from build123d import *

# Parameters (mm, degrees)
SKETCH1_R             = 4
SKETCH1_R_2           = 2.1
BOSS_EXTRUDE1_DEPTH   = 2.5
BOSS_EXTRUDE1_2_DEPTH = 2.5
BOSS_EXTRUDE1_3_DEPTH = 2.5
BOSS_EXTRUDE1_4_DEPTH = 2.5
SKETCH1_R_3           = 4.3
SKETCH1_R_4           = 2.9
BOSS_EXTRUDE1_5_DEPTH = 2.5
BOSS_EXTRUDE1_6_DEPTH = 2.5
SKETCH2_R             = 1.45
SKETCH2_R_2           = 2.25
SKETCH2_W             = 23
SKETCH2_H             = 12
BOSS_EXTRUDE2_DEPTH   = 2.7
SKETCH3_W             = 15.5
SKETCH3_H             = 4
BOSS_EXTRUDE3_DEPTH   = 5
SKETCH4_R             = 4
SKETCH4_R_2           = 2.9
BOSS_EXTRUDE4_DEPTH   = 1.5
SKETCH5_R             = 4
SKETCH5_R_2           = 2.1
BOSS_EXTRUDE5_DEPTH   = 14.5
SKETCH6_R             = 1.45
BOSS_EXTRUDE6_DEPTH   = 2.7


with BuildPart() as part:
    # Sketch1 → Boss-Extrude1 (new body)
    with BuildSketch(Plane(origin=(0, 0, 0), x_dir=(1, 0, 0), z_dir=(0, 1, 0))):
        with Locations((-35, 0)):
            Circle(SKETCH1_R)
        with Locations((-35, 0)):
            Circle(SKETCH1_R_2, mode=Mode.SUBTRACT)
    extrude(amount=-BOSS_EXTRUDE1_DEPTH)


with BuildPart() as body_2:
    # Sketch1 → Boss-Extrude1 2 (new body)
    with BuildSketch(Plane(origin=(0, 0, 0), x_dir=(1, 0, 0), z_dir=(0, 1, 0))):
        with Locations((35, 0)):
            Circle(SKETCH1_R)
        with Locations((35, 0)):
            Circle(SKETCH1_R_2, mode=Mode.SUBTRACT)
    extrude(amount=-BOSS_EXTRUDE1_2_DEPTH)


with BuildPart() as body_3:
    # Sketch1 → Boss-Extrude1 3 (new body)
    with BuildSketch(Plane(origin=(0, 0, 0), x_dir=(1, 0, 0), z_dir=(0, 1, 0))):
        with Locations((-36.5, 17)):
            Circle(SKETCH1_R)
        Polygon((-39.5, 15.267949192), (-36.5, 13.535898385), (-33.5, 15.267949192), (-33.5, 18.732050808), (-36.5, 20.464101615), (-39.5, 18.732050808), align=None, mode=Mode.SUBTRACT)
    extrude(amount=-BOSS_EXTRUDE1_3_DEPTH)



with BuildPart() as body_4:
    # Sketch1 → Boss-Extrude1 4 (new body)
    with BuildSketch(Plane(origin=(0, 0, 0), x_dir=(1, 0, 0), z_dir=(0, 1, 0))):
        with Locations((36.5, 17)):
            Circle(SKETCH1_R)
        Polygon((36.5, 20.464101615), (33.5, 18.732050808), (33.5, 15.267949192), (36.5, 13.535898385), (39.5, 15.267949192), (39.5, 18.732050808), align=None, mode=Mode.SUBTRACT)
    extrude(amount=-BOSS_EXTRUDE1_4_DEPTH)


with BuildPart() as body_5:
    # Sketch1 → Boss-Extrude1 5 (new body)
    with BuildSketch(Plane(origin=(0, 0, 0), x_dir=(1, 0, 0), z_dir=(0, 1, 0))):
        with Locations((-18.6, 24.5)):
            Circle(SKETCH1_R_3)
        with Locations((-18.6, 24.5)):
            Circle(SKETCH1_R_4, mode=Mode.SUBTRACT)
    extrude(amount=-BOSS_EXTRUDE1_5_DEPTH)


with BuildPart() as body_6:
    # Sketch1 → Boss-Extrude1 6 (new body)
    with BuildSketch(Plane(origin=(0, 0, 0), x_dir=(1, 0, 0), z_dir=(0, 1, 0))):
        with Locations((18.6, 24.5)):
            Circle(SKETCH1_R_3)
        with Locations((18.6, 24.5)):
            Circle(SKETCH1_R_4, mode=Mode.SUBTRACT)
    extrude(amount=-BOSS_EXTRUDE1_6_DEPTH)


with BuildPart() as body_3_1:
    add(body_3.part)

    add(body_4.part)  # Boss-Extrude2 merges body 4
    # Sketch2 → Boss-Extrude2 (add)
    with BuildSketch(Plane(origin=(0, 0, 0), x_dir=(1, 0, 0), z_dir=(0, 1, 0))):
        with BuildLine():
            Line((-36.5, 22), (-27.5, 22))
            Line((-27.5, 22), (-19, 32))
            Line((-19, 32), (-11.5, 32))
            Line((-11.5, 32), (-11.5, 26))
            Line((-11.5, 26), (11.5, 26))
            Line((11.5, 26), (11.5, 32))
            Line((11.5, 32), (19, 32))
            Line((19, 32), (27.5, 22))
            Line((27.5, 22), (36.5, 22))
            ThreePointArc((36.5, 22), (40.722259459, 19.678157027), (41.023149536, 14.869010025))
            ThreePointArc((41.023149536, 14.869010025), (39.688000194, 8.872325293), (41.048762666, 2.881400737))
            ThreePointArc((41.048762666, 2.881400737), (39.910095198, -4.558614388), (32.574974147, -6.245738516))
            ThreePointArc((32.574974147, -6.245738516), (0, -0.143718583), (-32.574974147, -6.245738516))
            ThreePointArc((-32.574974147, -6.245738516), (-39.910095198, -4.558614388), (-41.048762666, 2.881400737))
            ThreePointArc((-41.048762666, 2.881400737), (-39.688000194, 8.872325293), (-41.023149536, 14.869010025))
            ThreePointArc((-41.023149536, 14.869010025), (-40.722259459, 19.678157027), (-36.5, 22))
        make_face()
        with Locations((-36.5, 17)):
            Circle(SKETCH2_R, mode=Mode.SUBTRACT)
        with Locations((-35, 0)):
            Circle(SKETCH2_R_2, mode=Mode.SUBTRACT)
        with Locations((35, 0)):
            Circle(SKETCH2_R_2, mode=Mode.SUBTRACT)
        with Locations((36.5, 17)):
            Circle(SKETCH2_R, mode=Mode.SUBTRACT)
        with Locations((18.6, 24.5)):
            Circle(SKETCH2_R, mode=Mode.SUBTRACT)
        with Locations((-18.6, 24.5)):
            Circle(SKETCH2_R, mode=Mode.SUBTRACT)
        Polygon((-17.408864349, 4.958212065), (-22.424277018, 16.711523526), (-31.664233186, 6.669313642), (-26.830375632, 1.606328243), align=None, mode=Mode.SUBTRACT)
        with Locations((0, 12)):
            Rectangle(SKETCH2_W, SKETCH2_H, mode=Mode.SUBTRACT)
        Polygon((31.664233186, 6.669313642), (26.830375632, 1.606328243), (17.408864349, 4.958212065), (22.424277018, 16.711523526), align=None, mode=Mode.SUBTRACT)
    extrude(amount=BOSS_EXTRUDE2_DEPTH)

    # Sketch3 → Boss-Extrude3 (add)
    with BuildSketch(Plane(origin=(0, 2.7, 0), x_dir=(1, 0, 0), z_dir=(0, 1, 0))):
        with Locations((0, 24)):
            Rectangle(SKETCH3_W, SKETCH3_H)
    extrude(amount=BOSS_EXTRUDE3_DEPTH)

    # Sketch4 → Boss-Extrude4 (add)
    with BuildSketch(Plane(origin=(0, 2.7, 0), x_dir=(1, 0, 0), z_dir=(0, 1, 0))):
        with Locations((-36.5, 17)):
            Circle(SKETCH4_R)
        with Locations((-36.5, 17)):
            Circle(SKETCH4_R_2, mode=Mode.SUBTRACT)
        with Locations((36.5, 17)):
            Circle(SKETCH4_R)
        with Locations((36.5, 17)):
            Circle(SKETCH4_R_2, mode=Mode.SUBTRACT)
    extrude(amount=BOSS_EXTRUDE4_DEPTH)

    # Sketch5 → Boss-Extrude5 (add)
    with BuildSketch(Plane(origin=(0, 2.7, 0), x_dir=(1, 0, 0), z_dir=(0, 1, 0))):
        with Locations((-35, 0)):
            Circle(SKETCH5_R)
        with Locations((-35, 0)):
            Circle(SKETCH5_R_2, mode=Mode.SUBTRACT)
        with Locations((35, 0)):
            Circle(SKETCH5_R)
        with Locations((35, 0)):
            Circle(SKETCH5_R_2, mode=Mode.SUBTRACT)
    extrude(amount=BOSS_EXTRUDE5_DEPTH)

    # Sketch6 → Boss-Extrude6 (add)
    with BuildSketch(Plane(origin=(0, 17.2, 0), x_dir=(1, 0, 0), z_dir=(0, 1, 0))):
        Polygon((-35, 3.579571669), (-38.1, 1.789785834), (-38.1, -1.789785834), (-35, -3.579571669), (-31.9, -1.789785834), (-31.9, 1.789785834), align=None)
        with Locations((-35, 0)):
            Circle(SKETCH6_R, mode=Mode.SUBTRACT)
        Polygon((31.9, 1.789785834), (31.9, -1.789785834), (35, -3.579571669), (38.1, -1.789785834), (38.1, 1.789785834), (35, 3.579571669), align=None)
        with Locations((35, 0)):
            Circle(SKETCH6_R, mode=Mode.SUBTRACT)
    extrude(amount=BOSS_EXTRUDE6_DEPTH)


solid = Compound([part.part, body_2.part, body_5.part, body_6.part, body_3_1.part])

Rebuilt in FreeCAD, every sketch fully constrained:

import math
import FreeCAD as App
import Part
import Sketcher
Q = App.Units.Quantity


def add_polygon(sketch, points):
    """Adds a closed chain of lines whose ends are joined by coincident constraints."""
    first, n = sketch.GeometryCount, len(points)
    for a, b in zip(points, points[1:] + points[:1]):
        sketch.addGeometry(Part.LineSegment(App.Vector(*a, 0), App.Vector(*b, 0)), False)
    for i in range(n):
        sketch.addConstraint(Sketcher.Constraint("Coincident", first + i, 2, first + (i + 1) % n, 1))

doc = App.newDocument("Part")
body = doc.addObject("PartDesign::Body", "Body")

sketch1 = body.newObject("Sketcher::SketchObject", "Sketch")
sketch1.AttachmentSupport = (doc.getObject("XZ_Plane"), [""])
sketch1.MapMode = "FlatFace"
sketch1.addGeometry([
    Part.Circle(App.Vector(-35, 0, 0), App.Vector(0, 0, 1), 4),
    Part.Circle(App.Vector(-35, 0, 0), App.Vector(0, 0, 1), 2.1),
], False)
sketch1.addConstraint([
    Sketcher.Constraint("Coincident", 1, 3, 0, 3),
    Sketcher.Constraint("PointOnObject", 0, 3, -1),
    Sketcher.Constraint("Diameter", 0, Q("8 mm")),
    Sketcher.Constraint("Diameter", 1, Q("4.2 mm")),
    Sketcher.Constraint("DistanceX", 0, 3, -1, 1, Q("35 mm")),
])
pad1 = body.newObject("PartDesign::Pad", "Pad")
pad1.Profile = sketch1
pad1.Length = 2.5
body2 = doc.addObject("PartDesign::Body", "Body001")

sketch2 = body2.newObject("Sketcher::SketchObject", "Sketch001")
sketch2.AttachmentSupport = (doc.getObject("XZ_Plane001"), [""])
sketch2.MapMode = "FlatFace"
sketch2.addGeometry([
    Part.Circle(App.Vector(35, 0, 0), App.Vector(0, 0, 1), 4),
    Part.Circle(App.Vector(35, 0, 0), App.Vector(0, 0, 1), 2.1),
], False)
sketch2.addConstraint([
    Sketcher.Constraint("Coincident", 1, 3, 0, 3),
    Sketcher.Constraint("PointOnObject", 0, 3, -1),
    Sketcher.Constraint("Diameter", 0, Q("8 mm")),
    Sketcher.Constraint("Diameter", 1, Q("4.2 mm")),
    Sketcher.Constraint("DistanceX", -1, 1, 0, 3, Q("35 mm")),
])
pad2 = body2.newObject("PartDesign::Pad", "Pad001")
pad2.Profile = sketch2
pad2.Length = 2.5
body3 = doc.addObject("PartDesign::Body", "Body002")

sketch3 = body3.newObject("Sketcher::SketchObject", "Sketch002")
sketch3.AttachmentSupport = (doc.getObject("XZ_Plane002"), [""])
sketch3.MapMode = "FlatFace"
sketch3.addGeometry(Part.Circle(App.Vector(-36.5, -17, 0), App.Vector(0, 0, 1), 4), False)
add_polygon(sketch3, [(-36.5, -13.5), (-39.5, -15.3), (-39.5, -18.7), (-36.5, -20.5), (-33.5, -18.7), (-33.5, -15.3)])
sketch3.addConstraint([
    Sketcher.Constraint("Vertical", 2),
    Sketcher.Constraint("Vertical", 5),
    Sketcher.Constraint("Parallel", 1, 4),
    Sketcher.Constraint("Parallel", 3, 6),
    Sketcher.Constraint("Horizontal", 2, 2, 4, 2),
    Sketcher.Constraint("Horizontal", 1, 2, 5, 2),
    Sketcher.Constraint("Vertical", 0, 3, 3, 2),
    Sketcher.Constraint("Vertical", 3, 2, 6, 2),
    Sketcher.Constraint("Diameter", 0, Q("8 mm")),
    Sketcher.Constraint("Angle", 1, Q("-150 deg")),
    Sketcher.Constraint("DistanceY", 0, 3, -1, 1, Q("17 mm")),
    Sketcher.Constraint("DistanceX", 1, 2, 0, 3, Q("3 mm")),
    Sketcher.Constraint("DistanceX", 0, 3, -1, 1, Q("36.5 mm")),
    Sketcher.Constraint("DistanceY", 2, 2, 2, 1, Q("3.464102 mm")),
    Sketcher.Constraint("DistanceY", 3, 2, -1, 1, Q("20.464102 mm")),
])
pad3 = body3.newObject("PartDesign::Pad", "Pad002")
pad3.Profile = sketch3
pad3.Length = 2.5
body4 = doc.addObject("PartDesign::Body", "Body003")

sketch4 = body4.newObject("Sketcher::SketchObject", "Sketch003")
sketch4.AttachmentSupport = (doc.getObject("XZ_Plane003"), [""])
sketch4.MapMode = "FlatFace"
sketch4.addGeometry(Part.Circle(App.Vector(36.5, -17, 0), App.Vector(0, 0, 1), 4), False)
add_polygon(sketch4, [(33.5, -18.7), (36.5, -20.5), (39.5, -18.7), (39.5, -15.3), (36.5, -13.5), (33.5, -15.3)])
sketch4.addConstraint([
    Sketcher.Constraint("Vertical", 3),
    Sketcher.Constraint("Vertical", 6),
    Sketcher.Constraint("Parallel", 1, 4),
    Sketcher.Constraint("Parallel", 2, 5),
    Sketcher.Constraint("Horizontal", 3, 2, 5, 2),
    Sketcher.Constraint("Horizontal", 2, 2, 6, 2),
    Sketcher.Constraint("Vertical", 0, 3, 1, 2),
    Sketcher.Constraint("Vertical", 1, 2, 4, 2),
    Sketcher.Constraint("Diameter", 0, Q("8 mm")),
    Sketcher.Constraint("Angle", 1, Q("-30 deg")),
    Sketcher.Constraint("DistanceY", 0, 3, -1, 1, Q("17 mm")),
    Sketcher.Constraint("DistanceX", 1, 2, 2, 2, Q("3 mm")),
    Sketcher.Constraint("DistanceX", -1, 1, 0, 3, Q("36.5 mm")),
    Sketcher.Constraint("DistanceY", 3, 1, 3, 2, Q("3.464102 mm")),
    Sketcher.Constraint("DistanceY", 1, 2, -1, 1, Q("20.464102 mm")),
])
pad4 = body4.newObject("PartDesign::Pad", "Pad003")
pad4.Profile = sketch4
pad4.Length = 2.5
body5 = doc.addObject("PartDesign::Body", "Body004")

sketch5 = body5.newObject("Sketcher::SketchObject", "Sketch004")
sketch5.AttachmentSupport = (doc.getObject("XZ_Plane004"), [""])
sketch5.MapMode = "FlatFace"
sketch5.addGeometry([
    Part.Circle(App.Vector(-18.6, -24.5, 0), App.Vector(0, 0, 1), 4.3),
    Part.Circle(App.Vector(-18.6, -24.5, 0), App.Vector(0, 0, 1), 2.9),
], False)
sketch5.addConstraint([
    Sketcher.Constraint("Coincident", 1, 3, 0, 3),
    Sketcher.Constraint("Diameter", 0, Q("8.6 mm")),
    Sketcher.Constraint("Diameter", 1, Q("5.8 mm")),
    Sketcher.Constraint("DistanceX", 0, 3, -1, 1, Q("18.6 mm")),
    Sketcher.Constraint("DistanceY", 0, 3, -1, 1, Q("24.5 mm")),
])
pad5 = body5.newObject("PartDesign::Pad", "Pad004")
pad5.Profile = sketch5
pad5.Length = 2.5
body6 = doc.addObject("PartDesign::Body", "Body005")

sketch6 = body6.newObject("Sketcher::SketchObject", "Sketch005")
sketch6.AttachmentSupport = (doc.getObject("XZ_Plane005"), [""])
sketch6.MapMode = "FlatFace"
sketch6.addGeometry([
    Part.Circle(App.Vector(18.6, -24.5, 0), App.Vector(0, 0, 1), 4.3),
    Part.Circle(App.Vector(18.6, -24.5, 0), App.Vector(0, 0, 1), 2.9),
], False)
sketch6.addConstraint([
    Sketcher.Constraint("Coincident", 1, 3, 0, 3),
    Sketcher.Constraint("Diameter", 0, Q("8.6 mm")),
    Sketcher.Constraint("Diameter", 1, Q("5.8 mm")),
    Sketcher.Constraint("DistanceX", -1, 1, 0, 3, Q("18.6 mm")),
    Sketcher.Constraint("DistanceY", 0, 3, -1, 1, Q("24.5 mm")),
])
pad6 = body6.newObject("PartDesign::Pad", "Pad005")
pad6.Profile = sketch6
pad6.Length = 2.5
body3.AllowCompound = True
doc.recompute()

boolean = body3.newObject("PartDesign::Boolean", "Boolean")
boolean.Type = "Fuse"
boolean.addObjects([body4])

sketch7 = body3.newObject("Sketcher::SketchObject", "Sketch006")
sketch7.AttachmentSupport = (doc.getObject("XZ_Plane002"), [""])
sketch7.MapMode = "FlatFace"
sketch7.addGeometry(Part.LineSegment(App.Vector(-27.5, -22, 0), App.Vector(-36.5, -22, 0)), False)
sketch7.addGeometry(Part.ArcOfCircle(Part.Circle(App.Vector(-36.5, -17, 0), App.Vector(0, 0, 1), 5), math.radians(155), math.radians(270)), False)
sketch7.addGeometry(Part.ArcOfCircle(Part.Circle(App.Vector(-53.7, -8.9, 0), App.Vector(0, 0, 1), 14), math.radians(-25), math.radians(25)), False)
sketch7.addGeometry(Part.ArcOfCircle(Part.Circle(App.Vector(-35, 0, 0), App.Vector(0, 0, 1), 6.7), math.radians(69), math.radians(205)), False)
sketch7.addGeometry(Part.ArcOfCircle(Part.Circle(App.Vector(0, 90.1, 0), App.Vector(0, 0, 1), 90), math.radians(-111), math.radians(-69)), False)
sketch7.addGeometry(Part.ArcOfCircle(Part.Circle(App.Vector(35, 0, 0), App.Vector(0, 0, 1), 6.7), math.radians(-25), math.radians(111)), False)
sketch7.addGeometry(Part.ArcOfCircle(Part.Circle(App.Vector(53.7, -8.9, 0), App.Vector(0, 0, 1), 14), math.radians(155), math.radians(205)), False)
sketch7.addGeometry(Part.ArcOfCircle(Part.Circle(App.Vector(36.5, -17, 0), App.Vector(0, 0, 1), 5), math.radians(-90), math.radians(25)), False)
sketch7.addGeometry(Part.LineSegment(App.Vector(36.5, -22, 0), App.Vector(27.5, -22, 0)), False)
sketch7.addGeometry(Part.LineSegment(App.Vector(27.5, -22, 0), App.Vector(19, -32, 0)), False)
sketch7.addGeometry(Part.LineSegment(App.Vector(19, -32, 0), App.Vector(11.5, -32, 0)), False)
sketch7.addGeometry(Part.LineSegment(App.Vector(11.5, -32, 0), App.Vector(11.5, -26, 0)), False)
sketch7.addGeometry(Part.LineSegment(App.Vector(11.5, -26, 0), App.Vector(-11.5, -26, 0)), False)
sketch7.addGeometry(Part.LineSegment(App.Vector(-11.5, -26, 0), App.Vector(-11.5, -32, 0)), False)
sketch7.addGeometry(Part.LineSegment(App.Vector(-11.5, -32, 0), App.Vector(-19, -32, 0)), False)
sketch7.addGeometry(Part.LineSegment(App.Vector(-19, -32, 0), App.Vector(-27.5, -22, 0)), False)
sketch7.addGeometry(Part.Circle(App.Vector(35, 0, 0), App.Vector(0, 0, 1), 2.2), False)
add_polygon(sketch7, [(31.7, -6.7), (26.8, -1.6), (17.4, -5), (22.4, -16.7)])
sketch7.addGeometry(Part.Circle(App.Vector(-35, 0, 0), App.Vector(0, 0, 1), 2.2), False)
add_polygon(sketch7, [(-17.4, -5), (-26.8, -1.6), (-31.7, -6.7), (-22.4, -16.7)])
sketch7.addGeometry(Part.Circle(App.Vector(36.5, -17, 0), App.Vector(0, 0, 1), 1.4), False)
sketch7.addGeometry(Part.Circle(App.Vector(18.6, -24.5, 0), App.Vector(0, 0, 1), 1.4), False)
add_polygon(sketch7, [(-11.5, -6), (-11.5, -18), (11.5, -18), (11.5, -6)])
sketch7.addGeometry(Part.Circle(App.Vector(-36.5, -17, 0), App.Vector(0, 0, 1), 1.4), False)
sketch7.addGeometry(Part.Circle(App.Vector(-18.6, -24.5, 0), App.Vector(0, 0, 1), 1.4), False)
sketch7.addConstraint([
    Sketcher.Constraint("Tangent", 0, 2, 1, 2),
    Sketcher.Constraint("Tangent", 1, 1, 2, 1),
    Sketcher.Constraint("Tangent", 2, 2, 3, 2),
    Sketcher.Constraint("Tangent", 3, 1, 4, 1),
    Sketcher.Constraint("Tangent", 4, 2, 5, 2),
    Sketcher.Constraint("Tangent", 5, 1, 6, 1),
    Sketcher.Constraint("Tangent", 6, 2, 7, 2),
    Sketcher.Constraint("Tangent", 7, 1, 8, 1),
    Sketcher.Constraint("Coincident", 8, 2, 9, 1),
    Sketcher.Constraint("Coincident", 9, 2, 10, 1),
    Sketcher.Constraint("Coincident", 10, 2, 11, 1),
    Sketcher.Constraint("Coincident", 11, 2, 12, 1),
    Sketcher.Constraint("Coincident", 12, 2, 13, 1),
    Sketcher.Constraint("Coincident", 13, 2, 14, 1),
    Sketcher.Constraint("Coincident", 14, 2, 15, 1),
    Sketcher.Constraint("Coincident", 15, 2, 0, 1),
    Sketcher.Constraint("Horizontal", 0),
    Sketcher.Constraint("Horizontal", 8),
    Sketcher.Constraint("Horizontal", 10),
    Sketcher.Constraint("Vertical", 11),
    Sketcher.Constraint("Horizontal", 12),
    Sketcher.Constraint("Vertical", 13),
    Sketcher.Constraint("Horizontal", 14),
    Sketcher.Constraint("Vertical", 28),
    Sketcher.Constraint("Horizontal", 29),
    Sketcher.Constraint("Vertical", 30),
    Sketcher.Constraint("Horizontal", 31),
    Sketcher.Constraint("Coincident", 16, 3, 5, 3),
    Sketcher.Constraint("Coincident", 21, 3, 3, 3),
    Sketcher.Constraint("Coincident", 26, 3, 7, 3),
    Sketcher.Constraint("Coincident", 32, 3, 1, 3),
    Sketcher.Constraint("Equal", 3, 5),
    Sketcher.Constraint("Equal", 2, 6),
    Sketcher.Constraint("Equal", 1, 7),
    Sketcher.Constraint("Equal", 16, 21),
    Sketcher.Constraint("Equal", 26, 27),
    Sketcher.Constraint("Equal", 27, 32),
    Sketcher.Constraint("Equal", 32, 33),
    Sketcher.Constraint("Symmetric", 3, 3, 5, 3, -1, 1),
    Sketcher.Constraint("Symmetric", 2, 3, 6, 3, -2),
    Sketcher.Constraint("Symmetric", 27, 3, 33, 3, -2),
    Sketcher.Constraint("Symmetric", 10, 2, 13, 2, -2),
    Sketcher.Constraint("Symmetric", 8, 2, 15, 2, -2),
    Sketcher.Constraint("Symmetric", 17, 2, 22, 2, -2),
    Sketcher.Constraint("Symmetric", 20, 2, 23, 2, -2),
    Sketcher.Constraint("Symmetric", 19, 2, 24, 2, -2),
    Sketcher.Constraint("Symmetric", 18, 2, 25, 2, -2),
    Sketcher.Constraint("Vertical", 13, 2, 28, 2),
    Sketcher.Constraint("Vertical", 11, 2, 29, 2),
    Sketcher.Constraint("Equal", 10, 14),
    Sketcher.Constraint("Radius", 1, Q("5 mm")),
    Sketcher.Constraint("Radius", 2, Q("14 mm")),
    Sketcher.Constraint("Radius", 4, Q("90 mm")),
    Sketcher.Constraint("Diameter", 16, Q("4.5 mm")),
    Sketcher.Constraint("Diameter", 26, Q("2.9 mm")),
    Sketcher.Constraint("Radius", 3, Q("6.7 mm")),
    Sketcher.Constraint("DistanceX", 0, 2, 0, 1, Q("9 mm")),
    Sketcher.Constraint("DistanceX", 12, 2, 12, 1, Q("23 mm")),
    Sketcher.Constraint("DistanceY", 11, 1, 11, 2, Q("6 mm")),
    Sketcher.Constraint("DistanceY", 28, 2, 28, 1, Q("12 mm")),
    Sketcher.Constraint("Distance", 17, Q("7 mm")),
    Sketcher.Constraint("Distance", 18, Q("10 mm")),
    Sketcher.Constraint("DistanceX", 10, 2, 10, 1, Q("7.5 mm")),
    Sketcher.Constraint("DistanceY", 1, 3, -1, 1, Q("17 mm")),
    Sketcher.Constraint("DistanceX", 3, 3, -1, 1, Q("35 mm")),
    Sketcher.Constraint("DistanceY", 9, 2, -1, 1, Q("32 mm")),
    Sketcher.Constraint("DistanceY", 28, 2, -1, 1, Q("18 mm")),
    Sketcher.Constraint("DistanceX", 1, 3, 7, 3, Q("73 mm")),
    Sketcher.Constraint("DistanceX", -1, 1, 27, 3, Q("18.6 mm")),
    Sketcher.Constraint("DistanceY", 27, 3, -1, 1, Q("24.5 mm")),
    Sketcher.Constraint("DistanceX", 17, 2, 4, 2, Q("5.744599 mm")),
    Sketcher.Constraint("DistanceY", 23, 2, 25, 2, Q("1.711102 mm")),
    Sketcher.Constraint("Distance", 19, Q("12.778681 mm")),
    Sketcher.Constraint("DistanceY", 17, 2, -1, 1, Q("1.606328 mm")),
    Sketcher.Constraint("DistanceX", 18, 2, 17, 2, Q("9.421511 mm")),
    Sketcher.Constraint("DistanceY", 19, 2, 18, 2, Q("11.753311 mm")),
])
pad7 = body3.newObject("PartDesign::Pad", "Pad006")
pad7.Profile = sketch7
pad7.Length = 2.7
pad7.Reversed = True

sketch8 = body3.newObject("Sketcher::SketchObject", "Sketch007")
sketch8.AttachmentSupport = (doc.getObject("XZ_Plane002"), [""])
sketch8.MapMode = "FlatFace"
sketch8.AttachmentOffset = App.Placement(App.Vector(0, 0, -2.7), App.Rotation())
add_polygon(sketch8, [(-7.8, -26), (-7.8, -22), (7.8, -22), (7.8, -26)])
sketch8.addConstraint([
    Sketcher.Constraint("Vertical", 0),
    Sketcher.Constraint("Horizontal", 1),
    Sketcher.Constraint("Vertical", 2),
    Sketcher.Constraint("Horizontal", 3),
    Sketcher.Constraint("DistanceY", 0, 1, 0, 2, Q("4 mm")),
    Sketcher.Constraint("DistanceX", 1, 1, 1, 2, Q("15.5 mm")),
    Sketcher.Constraint("DistanceY", 0, 2, -1, 1, Q("22 mm")),
    Sketcher.Constraint("DistanceX", 0, 2, -1, 1, Q("7.75 mm")),
])
pad8 = body3.newObject("PartDesign::Pad", "Pad007")
pad8.Profile = sketch8
pad8.Length = 5
pad8.Reversed = True

sketch9 = body3.newObject("Sketcher::SketchObject", "Sketch008")
sketch9.AttachmentSupport = (doc.getObject("XZ_Plane002"), [""])
sketch9.MapMode = "FlatFace"
sketch9.AttachmentOffset = App.Placement(App.Vector(0, 0, -2.7), App.Rotation())
sketch9.addGeometry([
    Part.Circle(App.Vector(-36.5, -17, 0), App.Vector(0, 0, 1), 4),
    Part.Circle(App.Vector(-36.5, -17, 0), App.Vector(0, 0, 1), 2.9),
    Part.Circle(App.Vector(36.5, -17, 0), App.Vector(0, 0, 1), 4),
    Part.Circle(App.Vector(36.5, -17, 0), App.Vector(0, 0, 1), 2.9),
], False)
sketch9.addConstraint([
    Sketcher.Constraint("Coincident", 1, 3, 0, 3),
    Sketcher.Constraint("Coincident", 3, 3, 2, 3),
    Sketcher.Constraint("Equal", 0, 2),
    Sketcher.Constraint("Equal", 1, 3),
    Sketcher.Constraint("Symmetric", 0, 3, 2, 3, -2),
    Sketcher.Constraint("Diameter", 0, Q("8 mm")),
    Sketcher.Constraint("Diameter", 1, Q("5.8 mm")),
    Sketcher.Constraint("DistanceY", 0, 3, -1, 1, Q("17 mm")),
    Sketcher.Constraint("DistanceX", 0, 3, 2, 3, Q("73 mm")),
])
pad9 = body3.newObject("PartDesign::Pad", "Pad008")
pad9.Profile = sketch9
pad9.Length = 1.5
pad9.Reversed = True

sketch10 = body3.newObject("Sketcher::SketchObject", "Sketch009")
sketch10.AttachmentSupport = (doc.getObject("XZ_Plane002"), [""])
sketch10.MapMode = "FlatFace"
sketch10.AttachmentOffset = App.Placement(App.Vector(0, 0, -2.7), App.Rotation())
sketch10.addGeometry([
    Part.Circle(App.Vector(-35, 0, 0), App.Vector(0, 0, 1), 4),
    Part.Circle(App.Vector(-35, 0, 0), App.Vector(0, 0, 1), 2.1),
    Part.Circle(App.Vector(35, 0, 0), App.Vector(0, 0, 1), 4),
    Part.Circle(App.Vector(35, 0, 0), App.Vector(0, 0, 1), 2.1),
], False)
sketch10.addConstraint([
    Sketcher.Constraint("Coincident", 1, 3, 0, 3),
    Sketcher.Constraint("Coincident", 3, 3, 2, 3),
    Sketcher.Constraint("Equal", 0, 2),
    Sketcher.Constraint("Equal", 1, 3),
    Sketcher.Constraint("Symmetric", 0, 3, 2, 3, -1, 1),
    Sketcher.Constraint("PointOnObject", 0, 3, -1),
    Sketcher.Constraint("Diameter", 0, Q("8 mm")),
    Sketcher.Constraint("Diameter", 1, Q("4.2 mm")),
    Sketcher.Constraint("DistanceX", 0, 3, -1, 1, Q("35 mm")),
])
pad10 = body3.newObject("PartDesign::Pad", "Pad009")
pad10.Profile = sketch10
pad10.Length = 14.5
pad10.Reversed = True

sketch11 = body3.newObject("Sketcher::SketchObject", "Sketch010")
sketch11.AttachmentSupport = (doc.getObject("XZ_Plane002"), [""])
sketch11.MapMode = "FlatFace"
sketch11.AttachmentOffset = App.Placement(App.Vector(0, 0, -17.2), App.Rotation())
add_polygon(sketch11, [(-35, -3.6), (-38.1, -1.8), (-38.1, 1.8), (-35, 3.6), (-31.9, 1.8), (-31.9, -1.8)])
sketch11.addGeometry(Part.Circle(App.Vector(-35, 0, 0), App.Vector(0, 0, 1), 1.4), False)
add_polygon(sketch11, [(31.9, -1.8), (31.9, 1.8), (35, 3.6), (38.1, 1.8), (38.1, -1.8), (35, -3.6)])
sketch11.addGeometry(Part.Circle(App.Vector(35, 0, 0), App.Vector(0, 0, 1), 1.4), False)
sketch11.addConstraint([
    Sketcher.Constraint("Vertical", 1),
    Sketcher.Constraint("Vertical", 4),
    Sketcher.Constraint("Vertical", 7),
    Sketcher.Constraint("Vertical", 10),
    Sketcher.Constraint("Equal", 6, 13),
    Sketcher.Constraint("Symmetric", 6, 3, 13, 3, -1, 1),
    Sketcher.Constraint("Symmetric", 4, 2, 7, 2, -1, 1),
    Sketcher.Constraint("Symmetric", 5, 2, 8, 2, -1, 1),
    Sketcher.Constraint("Symmetric", 0, 2, 9, 2, -1, 1),
    Sketcher.Constraint("Symmetric", 2, 2, 11, 2, -1, 1),
    Sketcher.Constraint("Symmetric", 2, 2, 8, 2, -2),
    Sketcher.Constraint("PointOnObject", 6, 3, -1),
    Sketcher.Constraint("Parallel", 0, 3),
    Sketcher.Constraint("Parallel", 2, 5),
    Sketcher.Constraint("Parallel", 8, 11),
    Sketcher.Constraint("Parallel", 9, 12),
    Sketcher.Constraint("Horizontal", 1, 2, 3, 2),
    Sketcher.Constraint("Horizontal", 0, 2, 4, 2),
    Sketcher.Constraint("Vertical", 6, 3, 2, 2),
    Sketcher.Constraint("Diameter", 6, Q("2.9 mm")),
    Sketcher.Constraint("Angle", 0, Q("150 deg")),
    Sketcher.Constraint("DistanceX", 6, 3, -1, 1, Q("35 mm")),
    Sketcher.Constraint("DistanceX", 0, 2, -1, 1, Q("38.1 mm")),
    Sketcher.Constraint("DistanceY", 1, 1, 1, 2, Q("3.579572 mm")),
])
pad11 = body3.newObject("PartDesign::Pad", "Pad010")
pad11.Profile = sketch11
pad11.Length = 2.7
pad11.Reversed = True

doc.recompute()
